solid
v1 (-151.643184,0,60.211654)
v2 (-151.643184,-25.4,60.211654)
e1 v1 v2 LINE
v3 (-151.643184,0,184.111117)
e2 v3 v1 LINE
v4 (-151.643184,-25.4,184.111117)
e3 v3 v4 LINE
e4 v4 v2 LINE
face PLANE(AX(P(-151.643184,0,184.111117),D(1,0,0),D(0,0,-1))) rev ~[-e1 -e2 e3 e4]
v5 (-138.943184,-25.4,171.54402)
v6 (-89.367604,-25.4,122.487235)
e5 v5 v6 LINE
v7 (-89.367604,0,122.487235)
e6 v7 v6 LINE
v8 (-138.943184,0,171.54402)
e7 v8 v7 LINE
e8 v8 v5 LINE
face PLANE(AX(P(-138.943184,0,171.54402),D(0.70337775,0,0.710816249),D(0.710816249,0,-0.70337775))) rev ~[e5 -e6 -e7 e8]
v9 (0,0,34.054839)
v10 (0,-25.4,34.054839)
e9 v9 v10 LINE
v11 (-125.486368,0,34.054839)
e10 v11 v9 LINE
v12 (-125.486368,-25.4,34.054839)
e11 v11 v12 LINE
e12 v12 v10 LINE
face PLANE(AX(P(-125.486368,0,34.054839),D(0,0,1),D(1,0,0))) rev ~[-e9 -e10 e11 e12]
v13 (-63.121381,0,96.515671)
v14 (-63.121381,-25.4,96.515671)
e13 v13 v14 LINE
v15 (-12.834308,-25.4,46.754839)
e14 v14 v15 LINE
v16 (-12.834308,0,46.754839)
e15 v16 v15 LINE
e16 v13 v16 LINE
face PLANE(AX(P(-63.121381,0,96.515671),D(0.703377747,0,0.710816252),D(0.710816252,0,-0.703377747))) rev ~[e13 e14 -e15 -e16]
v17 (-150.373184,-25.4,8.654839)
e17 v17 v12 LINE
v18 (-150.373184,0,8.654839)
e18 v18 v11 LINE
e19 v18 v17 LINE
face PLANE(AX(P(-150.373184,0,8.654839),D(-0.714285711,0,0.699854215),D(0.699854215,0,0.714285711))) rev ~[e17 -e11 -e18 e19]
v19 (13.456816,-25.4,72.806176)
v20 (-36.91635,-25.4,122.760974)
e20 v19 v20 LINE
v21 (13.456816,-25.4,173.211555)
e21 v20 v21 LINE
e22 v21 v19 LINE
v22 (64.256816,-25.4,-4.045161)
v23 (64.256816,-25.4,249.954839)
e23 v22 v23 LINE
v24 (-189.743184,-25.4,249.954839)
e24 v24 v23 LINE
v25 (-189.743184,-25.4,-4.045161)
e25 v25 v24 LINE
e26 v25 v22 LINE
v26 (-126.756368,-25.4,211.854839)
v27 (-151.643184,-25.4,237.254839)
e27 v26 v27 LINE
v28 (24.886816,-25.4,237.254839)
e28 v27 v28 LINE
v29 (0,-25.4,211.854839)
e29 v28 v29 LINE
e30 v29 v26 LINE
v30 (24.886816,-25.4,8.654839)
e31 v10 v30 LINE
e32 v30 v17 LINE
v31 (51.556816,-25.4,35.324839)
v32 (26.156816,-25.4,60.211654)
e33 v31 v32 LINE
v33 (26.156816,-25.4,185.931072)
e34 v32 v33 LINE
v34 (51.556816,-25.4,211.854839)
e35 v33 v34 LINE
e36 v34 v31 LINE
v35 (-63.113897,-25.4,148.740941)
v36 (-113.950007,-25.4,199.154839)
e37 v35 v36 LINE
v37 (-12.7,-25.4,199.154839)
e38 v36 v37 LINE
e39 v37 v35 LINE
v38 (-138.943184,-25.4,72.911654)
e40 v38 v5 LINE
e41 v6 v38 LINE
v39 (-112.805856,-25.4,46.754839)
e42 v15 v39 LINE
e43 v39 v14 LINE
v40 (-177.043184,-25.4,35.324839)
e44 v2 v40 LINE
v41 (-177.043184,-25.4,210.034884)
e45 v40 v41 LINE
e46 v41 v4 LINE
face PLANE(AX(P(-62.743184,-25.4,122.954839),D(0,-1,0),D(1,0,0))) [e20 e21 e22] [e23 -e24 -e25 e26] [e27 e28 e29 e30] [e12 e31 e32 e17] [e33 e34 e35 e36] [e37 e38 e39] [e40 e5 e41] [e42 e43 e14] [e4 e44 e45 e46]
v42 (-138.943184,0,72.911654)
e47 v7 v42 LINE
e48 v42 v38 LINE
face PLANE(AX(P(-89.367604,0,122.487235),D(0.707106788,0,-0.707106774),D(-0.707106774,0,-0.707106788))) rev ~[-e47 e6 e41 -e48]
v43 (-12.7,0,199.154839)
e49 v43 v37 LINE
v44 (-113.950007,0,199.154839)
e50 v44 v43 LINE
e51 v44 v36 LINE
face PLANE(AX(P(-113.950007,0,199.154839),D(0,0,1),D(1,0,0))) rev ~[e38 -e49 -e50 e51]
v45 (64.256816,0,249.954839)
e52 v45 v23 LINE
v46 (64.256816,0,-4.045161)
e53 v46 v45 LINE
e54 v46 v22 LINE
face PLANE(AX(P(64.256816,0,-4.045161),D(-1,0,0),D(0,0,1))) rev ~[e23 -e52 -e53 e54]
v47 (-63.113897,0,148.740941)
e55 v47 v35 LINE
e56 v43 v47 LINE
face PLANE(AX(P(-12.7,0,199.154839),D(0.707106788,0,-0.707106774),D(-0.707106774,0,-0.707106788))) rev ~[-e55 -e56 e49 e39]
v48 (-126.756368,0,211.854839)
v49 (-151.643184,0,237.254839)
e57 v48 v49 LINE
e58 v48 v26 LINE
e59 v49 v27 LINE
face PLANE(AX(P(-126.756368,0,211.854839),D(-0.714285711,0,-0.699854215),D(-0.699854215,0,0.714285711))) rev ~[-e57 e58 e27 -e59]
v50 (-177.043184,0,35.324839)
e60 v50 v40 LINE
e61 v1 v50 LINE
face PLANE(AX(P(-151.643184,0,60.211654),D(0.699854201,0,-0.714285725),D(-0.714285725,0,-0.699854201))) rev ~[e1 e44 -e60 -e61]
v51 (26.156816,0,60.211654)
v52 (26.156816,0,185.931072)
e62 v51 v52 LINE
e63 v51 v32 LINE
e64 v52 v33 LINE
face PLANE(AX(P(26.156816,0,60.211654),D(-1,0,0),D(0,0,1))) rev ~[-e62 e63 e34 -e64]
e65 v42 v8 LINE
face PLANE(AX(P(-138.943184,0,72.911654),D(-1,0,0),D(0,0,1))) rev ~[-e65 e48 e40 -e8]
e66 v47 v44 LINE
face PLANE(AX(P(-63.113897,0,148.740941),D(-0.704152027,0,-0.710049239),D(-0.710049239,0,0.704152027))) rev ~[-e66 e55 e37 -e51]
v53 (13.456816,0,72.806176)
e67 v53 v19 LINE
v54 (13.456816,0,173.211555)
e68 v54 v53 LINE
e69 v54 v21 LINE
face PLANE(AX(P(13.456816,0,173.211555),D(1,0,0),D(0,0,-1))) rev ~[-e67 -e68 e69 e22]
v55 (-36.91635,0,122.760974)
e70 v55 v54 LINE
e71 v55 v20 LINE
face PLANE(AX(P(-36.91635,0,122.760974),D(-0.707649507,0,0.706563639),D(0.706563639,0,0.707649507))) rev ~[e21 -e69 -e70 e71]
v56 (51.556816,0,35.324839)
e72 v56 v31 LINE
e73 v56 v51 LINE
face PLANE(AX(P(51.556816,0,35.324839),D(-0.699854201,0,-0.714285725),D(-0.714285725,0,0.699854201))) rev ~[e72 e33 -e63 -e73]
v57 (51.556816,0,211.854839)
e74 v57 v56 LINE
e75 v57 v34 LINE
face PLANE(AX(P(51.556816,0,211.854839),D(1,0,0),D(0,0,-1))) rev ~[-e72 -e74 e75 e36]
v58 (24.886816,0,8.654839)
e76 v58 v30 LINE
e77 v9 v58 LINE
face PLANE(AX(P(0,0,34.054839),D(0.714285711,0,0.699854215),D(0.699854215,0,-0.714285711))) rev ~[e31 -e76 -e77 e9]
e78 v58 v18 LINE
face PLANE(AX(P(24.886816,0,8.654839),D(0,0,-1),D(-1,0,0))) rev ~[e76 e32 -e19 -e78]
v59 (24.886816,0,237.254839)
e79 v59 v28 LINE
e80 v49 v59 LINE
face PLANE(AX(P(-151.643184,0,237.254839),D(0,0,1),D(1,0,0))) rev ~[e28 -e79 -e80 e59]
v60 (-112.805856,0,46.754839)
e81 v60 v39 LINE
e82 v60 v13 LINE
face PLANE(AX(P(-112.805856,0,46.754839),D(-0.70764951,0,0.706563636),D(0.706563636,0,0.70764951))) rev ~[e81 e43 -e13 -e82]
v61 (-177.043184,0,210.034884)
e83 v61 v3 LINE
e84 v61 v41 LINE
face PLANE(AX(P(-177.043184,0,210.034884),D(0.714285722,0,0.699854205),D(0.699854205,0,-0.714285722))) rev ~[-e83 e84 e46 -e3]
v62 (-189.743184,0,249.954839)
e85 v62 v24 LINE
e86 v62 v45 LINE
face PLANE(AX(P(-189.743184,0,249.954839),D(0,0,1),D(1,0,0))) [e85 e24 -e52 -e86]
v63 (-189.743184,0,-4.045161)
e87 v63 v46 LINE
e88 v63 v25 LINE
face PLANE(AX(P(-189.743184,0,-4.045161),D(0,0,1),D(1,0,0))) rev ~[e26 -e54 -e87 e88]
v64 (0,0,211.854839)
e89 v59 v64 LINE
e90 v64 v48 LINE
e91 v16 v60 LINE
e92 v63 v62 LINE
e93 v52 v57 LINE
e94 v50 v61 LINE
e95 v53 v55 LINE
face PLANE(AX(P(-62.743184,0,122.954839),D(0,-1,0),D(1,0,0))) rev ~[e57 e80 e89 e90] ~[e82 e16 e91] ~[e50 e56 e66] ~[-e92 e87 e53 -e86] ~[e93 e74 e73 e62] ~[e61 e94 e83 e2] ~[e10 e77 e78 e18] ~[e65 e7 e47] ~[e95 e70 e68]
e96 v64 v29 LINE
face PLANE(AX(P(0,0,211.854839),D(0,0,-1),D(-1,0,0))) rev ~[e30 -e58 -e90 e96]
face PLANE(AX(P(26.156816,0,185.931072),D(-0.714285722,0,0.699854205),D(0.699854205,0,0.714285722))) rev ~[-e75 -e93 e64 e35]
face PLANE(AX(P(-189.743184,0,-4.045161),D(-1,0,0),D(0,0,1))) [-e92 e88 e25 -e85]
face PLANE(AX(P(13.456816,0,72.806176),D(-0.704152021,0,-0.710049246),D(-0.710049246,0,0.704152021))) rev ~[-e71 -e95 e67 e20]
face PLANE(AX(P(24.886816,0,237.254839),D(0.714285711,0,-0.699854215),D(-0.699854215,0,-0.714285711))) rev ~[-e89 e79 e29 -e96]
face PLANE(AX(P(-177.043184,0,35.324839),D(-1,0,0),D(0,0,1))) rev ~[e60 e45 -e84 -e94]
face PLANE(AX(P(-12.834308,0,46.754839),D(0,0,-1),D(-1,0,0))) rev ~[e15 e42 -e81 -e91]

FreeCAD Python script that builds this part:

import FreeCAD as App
import Part
import Sketcher

V = App.Vector
Q = App.Units.Quantity

doc = App.newDocument("Part")
body = doc.addObject("PartDesign::Body", "Body")

# Sketch on XZ plane
sketch1 = body.newObject("Sketcher::SketchObject", "Sketch")
sketch1.AttachmentSupport = (doc.getObject("XZ_Plane"), [""])
sketch1.MapMode = "FlatFace"
sketch1.addGeometry([
    Part.LineSegment(V(-189.743184, 249.954839, 0), V(-189.743184, -4.045161, 0)),  # 0
    Part.LineSegment(V(-189.743184, -4.045161, 0), V(64.256816, -4.045161, 0)),  # 1
    Part.LineSegment(V(64.256816, -4.045161, 0), V(64.256816, 249.954839, 0)),  # 2
    Part.LineSegment(V(64.256816, 249.954839, 0), V(-189.743184, 249.954839, 0)),  # 3
    Part.LineSegment(V(0, 34.054839, 0), V(24.886816, 8.654839, 0)),  # 4
    Part.LineSegment(V(24.886816, 8.654839, 0), V(-150.373184, 8.654839, 0)),  # 5
    Part.LineSegment(V(-150.373184, 8.654839, 0), V(-125.486368, 34.054839, 0)),  # 6
    Part.LineSegment(V(-125.486368, 34.054839, 0), V(0, 34.054839, 0)),  # 7
    Part.LineSegment(V(-151.643184, 60.211654, 0), V(-177.043184, 35.324839, 0)),  # 8
    Part.LineSegment(V(-177.043184, 35.324839, 0), V(-177.043184, 210.034884, 0)),  # 9
    Part.LineSegment(V(-177.043184, 210.034884, 0), V(-151.643184, 184.111117, 0)),  # 10
    Part.LineSegment(V(-151.643184, 184.111117, 0), V(-151.643184, 60.211654, 0)),  # 11
    Part.LineSegment(V(-63.121381, 96.515671, 0), V(-12.834308, 46.754839, 0)),  # 12
    Part.LineSegment(V(-12.834308, 46.754839, 0), V(-112.805856, 46.754839, 0)),  # 13
    Part.LineSegment(V(-112.805856, 46.754839, 0), V(-63.121381, 96.515671, 0)),  # 14
    Part.LineSegment(V(-89.367604, 122.487235, 0), V(-138.943184, 72.911654, 0)),  # 15
    Part.LineSegment(V(-138.943184, 72.911654, 0), V(-138.943184, 171.54402, 0)),  # 16
    Part.LineSegment(V(-138.943184, 171.54402, 0), V(-89.367604, 122.487235, 0)),  # 17
    Part.LineSegment(V(-12.7, 199.154839, 0), V(-63.113897, 148.740941, 0)),  # 18
    Part.LineSegment(V(-63.113897, 148.740941, 0), V(-113.950007, 199.154839, 0)),  # 19
    Part.LineSegment(V(-113.950007, 199.154839, 0), V(-12.7, 199.154839, 0)),  # 20
    Part.LineSegment(V(0, 211.854839, 0), V(-126.756368, 211.854839, 0)),  # 21
    Part.LineSegment(V(-126.756368, 211.854839, 0), V(-151.643184, 237.254839, 0)),  # 22
    Part.LineSegment(V(-151.643184, 237.254839, 0), V(24.886816, 237.254839, 0)),  # 23
    Part.LineSegment(V(24.886816, 237.254839, 0), V(0, 211.854839, 0)),  # 24
    Part.LineSegment(V(13.456816, 72.806176, 0), V(-36.91635, 122.760974, 0)),  # 25
    Part.LineSegment(V(-36.91635, 122.760974, 0), V(13.456816, 173.211555, 0)),  # 26
    Part.LineSegment(V(13.456816, 173.211555, 0), V(13.456816, 72.806176, 0)),  # 27
    Part.LineSegment(V(26.156816, 60.211654, 0), V(26.156816, 185.931072, 0)),  # 28
    Part.LineSegment(V(26.156816, 185.931072, 0), V(51.556816, 211.854839, 0)),  # 29
    Part.LineSegment(V(51.556816, 211.854839, 0), V(51.556816, 35.324839, 0)),  # 30
    Part.LineSegment(V(51.556816, 35.324839, 0), V(26.156816, 60.211654, 0)),  # 31
], False)
sketch1.addConstraint([
    Sketcher.Constraint("Coincident", 0, 2, 1, 1),
    Sketcher.Constraint("Coincident", 1, 2, 2, 1),
    Sketcher.Constraint("Coincident", 2, 2, 3, 1),
    Sketcher.Constraint("Coincident", 3, 2, 0, 1),
    Sketcher.Constraint("Coincident", 4, 2, 5, 1),
    Sketcher.Constraint("Coincident", 5, 2, 6, 1),
    Sketcher.Constraint("Coincident", 6, 2, 7, 1),
    Sketcher.Constraint("Coincident", 7, 2, 4, 1),
    Sketcher.Constraint("Coincident", 8, 2, 9, 1),
    Sketcher.Constraint("Coincident", 9, 2, 10, 1),
    Sketcher.Constraint("Coincident", 10, 2, 11, 1),
    Sketcher.Constraint("Coincident", 11, 2, 8, 1),
    Sketcher.Constraint("Coincident", 12, 2, 13, 1),
    Sketcher.Constraint("Coincident", 13, 2, 14, 1),
    Sketcher.Constraint("Coincident", 14, 2, 12, 1),
    Sketcher.Constraint("Coincident", 15, 2, 16, 1),
    Sketcher.Constraint("Coincident", 16, 2, 17, 1),
    Sketcher.Constraint("Coincident", 17, 2, 15, 1),
    Sketcher.Constraint("Coincident", 18, 2, 19, 1),
    Sketcher.Constraint("Coincident", 19, 2, 20, 1),
    Sketcher.Constraint("Coincident", 20, 2, 18, 1),
    Sketcher.Constraint("Coincident", 21, 2, 22, 1),
    Sketcher.Constraint("Coincident", 22, 2, 23, 1),
    Sketcher.Constraint("Coincident", 23, 2, 24, 1),
    Sketcher.Constraint("Coincident", 24, 2, 21, 1),
    Sketcher.Constraint("Coincident", 25, 2, 26, 1),
    Sketcher.Constraint("Coincident", 26, 2, 27, 1),
    Sketcher.Constraint("Coincident", 27, 2, 25, 1),
    Sketcher.Constraint("Coincident", 28, 2, 29, 1),
    Sketcher.Constraint("Coincident", 29, 2, 30, 1),
    Sketcher.Constraint("Coincident", 30, 2, 31, 1),
    Sketcher.Constraint("Coincident", 31, 2, 28, 1),
    Sketcher.Constraint("Vertical", 0),
    Sketcher.Constraint("Horizontal", 1),
    Sketcher.Constraint("Vertical", 2),
    Sketcher.Constraint("Horizontal", 3),
    Sketcher.Constraint("Horizontal", 5),
    Sketcher.Constraint("Horizontal", 7),
    Sketcher.Constraint("Vertical", 9),
    Sketcher.Constraint("Vertical", 11),
    Sketcher.Constraint("Horizontal", 13),
    Sketcher.Constraint("Vertical", 16),
    Sketcher.Constraint("Horizontal", 20),
    Sketcher.Constraint("Horizontal", 21),
    Sketcher.Constraint("Horizontal", 23),
    Sketcher.Constraint("Vertical", 27),
    Sketcher.Constraint("Vertical", 28),
    Sketcher.Constraint("Vertical", 30),
    Sketcher.Constraint("PointOnObject", 7, 2, -2),
    Sketcher.Constraint("PointOnObject", 24, 2, -2),
    Sketcher.Constraint("Perpendicular", 4, 8),
    Sketcher.Constraint("Perpendicular", 8, 10),
    Sketcher.Constraint("Parallel", 12, 17),
    Sketcher.Constraint("Parallel", 15, 18),
    Sketcher.Constraint("Parallel", 10, 22),
    Sketcher.Constraint("Parallel", 6, 24),
    Sketcher.Constraint("Parallel", 19, 25),
    Sketcher.Constraint("Parallel", 14, 26),
    Sketcher.Constraint("Parallel", 24, 29),
    Sketcher.Constraint("Perpendicular", 29, 31),
    Sketcher.Constraint("Horizontal", 24, 2, 29, 2),
    Sketcher.Constraint("Horizontal", 8, 2, 30, 2),
    Sketcher.Constraint("Horizontal", 11, 2, 31, 2),
    Sketcher.Constraint("Vertical", 11, 2, 22, 2),
    Sketcher.Constraint("Vertical", 4, 2, 23, 2),
    Sketcher.Constraint("Equal", 3, 0),
    Sketcher.Constraint("Equal", 23, 30),
    Sketcher.Constraint("Equal", 4, 6),
    Sketcher.Constraint("Equal", 6, 8),
    Sketcher.Constraint("DistanceX", 1, 1, 1, 2, Q("10 in")),
    Sketcher.Constraint("DistanceX", 5, 2, 5, 1, Q("6.9 in")),
    Sketcher.Constraint("Angle", 15, Q("-134.999999 deg")),
    Sketcher.Constraint("DistanceY", 5, 2, 6, 2, Q("1 in")),
    Sketcher.Constraint("DistanceY", 1, 2, 12, 2, Q("2 in")),
    Sketcher.Constraint("DistanceX", 3, 2, 16, 2, Q("2 in")),
    Sketcher.Constraint("DistanceY", 20, 2, 2, 2, Q("2 in")),
    Sketcher.Constraint("Distance", 4, Q("1.4 in")),
    Sketcher.Constraint("DistanceX", 23, 1, 23, 2, Q("6.95 in")),
    Sketcher.Constraint("DistanceX", 20, 2, -1, 1, Q("0.5 in")),
    Sketcher.Constraint("DistanceY", 1, 2, 4, 2, Q("0.5 in")),
    Sketcher.Constraint("DistanceX", 0, 2, 8, 2, Q("0.5 in")),
    Sketcher.Constraint("DistanceY", 11, 2, 15, 2, Q("0.5 in")),
    Sketcher.Constraint("DistanceY", 19, 2, 21, 2, Q("0.5 in")),
    Sketcher.Constraint("DistanceX", 26, 2, 28, 2, Q("0.5 in")),
    Sketcher.Constraint("DistanceX", 28, 2, 2, 2, Q("1.5 in")),
    Sketcher.Constraint("Distance", 25, Q("70.9432 mm")),
    Sketcher.Constraint("DistanceX", 13, 2, 13, 1, Q("99.971548 mm")),
    Sketcher.Constraint("DistanceY", 27, 2, 27, 1, Q("100.405379 mm")),
    Sketcher.Constraint("DistanceY", 18, 2, 19, 2, Q("50.413898 mm")),
    Sketcher.Constraint("DistanceY", 27, 2, 25, 2, Q("49.954798 mm")),
    Sketcher.Constraint("Distance", 14, Q("70.318472 mm")),
    Sketcher.Constraint("Distance", 15, Q("70.110458 mm")),
    Sketcher.Constraint("DistanceY", 9, 1, 9, 2, Q("174.710045 mm")),
    Sketcher.Constraint("DistanceY", 0, 2, -1, 1, Q("4.045161 mm")),
    Sketcher.Constraint("DistanceX", 14, 2, -1, 1, Q("63.121381 mm")),
    Sketcher.Constraint("DistanceY", 17, 2, 25, 2, Q("0.273739 mm")),
])
pad1 = body.newObject("PartDesign::Pad", "Pad")
pad1.Profile = sketch1
pad1.Length = Q("1 in")

doc.recompute()
